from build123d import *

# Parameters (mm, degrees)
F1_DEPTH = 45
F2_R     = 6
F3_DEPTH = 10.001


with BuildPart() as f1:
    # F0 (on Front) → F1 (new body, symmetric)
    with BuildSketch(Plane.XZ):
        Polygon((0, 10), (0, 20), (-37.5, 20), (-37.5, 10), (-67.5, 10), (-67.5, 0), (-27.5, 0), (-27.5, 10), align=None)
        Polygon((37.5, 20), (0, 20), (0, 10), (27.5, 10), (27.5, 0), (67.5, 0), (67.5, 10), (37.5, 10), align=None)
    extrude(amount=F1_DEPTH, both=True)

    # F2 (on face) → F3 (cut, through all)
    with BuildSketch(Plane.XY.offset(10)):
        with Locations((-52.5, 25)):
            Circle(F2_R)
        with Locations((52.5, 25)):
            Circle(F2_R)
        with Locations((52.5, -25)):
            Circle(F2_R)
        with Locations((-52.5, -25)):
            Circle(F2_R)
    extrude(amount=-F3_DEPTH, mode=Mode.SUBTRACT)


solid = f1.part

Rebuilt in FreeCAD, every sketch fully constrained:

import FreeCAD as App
import Part
import Sketcher

V = App.Vector
Q = App.Units.Quantity


def add_polygon(sketch, points):
    """Adds a closed chain of lines whose ends are joined by coincident constraints."""
    first, n = sketch.GeometryCount, len(points)
    for a, b in zip(points, points[1:] + points[:1]):
        sketch.addGeometry(Part.LineSegment(App.Vector(*a, 0), App.Vector(*b, 0)), False)
    for i in range(n):
        sketch.addConstraint(Sketcher.Constraint("Coincident", first + i, 2, first + (i + 1) % n, 1))

doc = App.newDocument("Part")
body = doc.addObject("PartDesign::Body", "Body")

sketch1 = body.newObject("Sketcher::SketchObject", "Sketch")
sketch1.AttachmentSupport = (doc.getObject("XZ_Plane"), [""])
sketch1.MapMode = "FlatFace"
add_polygon(sketch1, [(-38, 20), (-38, 10), (-68, 10), (-68, 0), (-28, 0), (-28, 10), (28, 10), (28, 0), (68, 0), (68, 10), (38, 10), (38, 20)])
sketch1.addConstraint(Sketcher.Constraint("Vertical", 0))
sketch1.addConstraint(Sketcher.Constraint("Horizontal", 1))
sketch1.addConstraint(Sketcher.Constraint("Vertical", 2))
sketch1.addConstraint(Sketcher.Constraint("Horizontal", 3))
sketch1.addConstraint(Sketcher.Constraint("Vertical", 4))
sketch1.addConstraint(Sketcher.Constraint("Horizontal", 5))
sketch1.addConstraint(Sketcher.Constraint("Vertical", 6))
sketch1.addConstraint(Sketcher.Constraint("Horizontal", 7))
sketch1.addConstraint(Sketcher.Constraint("Vertical", 8))
sketch1.addConstraint(Sketcher.Constraint("Horizontal", 9))
sketch1.addConstraint(Sketcher.Constraint("Vertical", 10))
sketch1.addConstraint(Sketcher.Constraint("Horizontal", 11))
sketch1.addConstraint(Sketcher.Constraint("Symmetric", 3, 2, 6, 2, -1, 1))
sketch1.addConstraint(Sketcher.Constraint("Symmetric", 2, 2, 7, 2, -2))
sketch1.addConstraint(Sketcher.Constraint("Symmetric", 0, 2, 9, 2, -2))
sketch1.addConstraint(Sketcher.Constraint("Horizontal", 1, 2, 4, 2))
sketch1.addConstraint(Sketcher.Constraint("Equal", 0, 2))
sketch1.addConstraint(Sketcher.Constraint("DistanceX", 1, 2, 1, 1, Q("30 mm")))
sketch1.addConstraint(Sketcher.Constraint("DistanceX", 3, 1, 3, 2, Q("40 mm")))
sketch1.addConstraint(Sketcher.Constraint("DistanceX", 5, 1, 5, 2, Q("55 mm")))
sketch1.addConstraint(Sketcher.Constraint("DistanceY", 0, 2, 0, 1, Q("10 mm")))
pad1 = body.newObject("PartDesign::Pad", "Pad")
pad1.Profile = sketch1
pad1.Length = 90
pad1.Midplane = True

sketch2 = body.newObject("Sketcher::SketchObject", "Sketch001")
sketch2.AttachmentSupport = (doc.getObject("XY_Plane"), [""])
sketch2.MapMode = "FlatFace"
sketch2.AttachmentOffset = App.Placement(V(0, 0, 10), App.Rotation())
sketch2.addGeometry(Part.Circle(V(-52, 25, 0), V(0, 0, 1), 6), False)
sketch2.addGeometry(Part.Circle(V(52, 25, 0), V(0, 0, 1), 6), False)
sketch2.addGeometry(Part.Circle(V(52, -25, 0), V(0, 0, 1), 6), False)
sketch2.addGeometry(Part.Circle(V(-52, -25, 0), V(0, 0, 1), 6), False)
sketch2.addConstraint(Sketcher.Constraint("Equal", 0, 1))
sketch2.addConstraint(Sketcher.Constraint("Equal", 1, 2))
sketch2.addConstraint(Sketcher.Constraint("Equal", 2, 3))
sketch2.addConstraint(Sketcher.Constraint("Symmetric", 0, 3, 2, 3, -1, 1))
sketch2.addConstraint(Sketcher.Constraint("Symmetric", 1, 3, 3, 3, -1, 1))
sketch2.addConstraint(Sketcher.Constraint("Symmetric", 0, 3, 1, 3, -2))
sketch2.addConstraint(Sketcher.Constraint("Diameter", 0, Q("12 mm")))
sketch2.addConstraint(Sketcher.Constraint("DistanceY", -1, 1, 0, 3, Q("25 mm")))
sketch2.addConstraint(Sketcher.Constraint("DistanceX", 0, 3, 1, 3, Q("105 mm")))
pocket1 = body.newObject("PartDesign::Pocket", "Pocket")
pocket1.Profile = sketch2
pocket1.Type = "ThroughAll"

doc.recompute()
